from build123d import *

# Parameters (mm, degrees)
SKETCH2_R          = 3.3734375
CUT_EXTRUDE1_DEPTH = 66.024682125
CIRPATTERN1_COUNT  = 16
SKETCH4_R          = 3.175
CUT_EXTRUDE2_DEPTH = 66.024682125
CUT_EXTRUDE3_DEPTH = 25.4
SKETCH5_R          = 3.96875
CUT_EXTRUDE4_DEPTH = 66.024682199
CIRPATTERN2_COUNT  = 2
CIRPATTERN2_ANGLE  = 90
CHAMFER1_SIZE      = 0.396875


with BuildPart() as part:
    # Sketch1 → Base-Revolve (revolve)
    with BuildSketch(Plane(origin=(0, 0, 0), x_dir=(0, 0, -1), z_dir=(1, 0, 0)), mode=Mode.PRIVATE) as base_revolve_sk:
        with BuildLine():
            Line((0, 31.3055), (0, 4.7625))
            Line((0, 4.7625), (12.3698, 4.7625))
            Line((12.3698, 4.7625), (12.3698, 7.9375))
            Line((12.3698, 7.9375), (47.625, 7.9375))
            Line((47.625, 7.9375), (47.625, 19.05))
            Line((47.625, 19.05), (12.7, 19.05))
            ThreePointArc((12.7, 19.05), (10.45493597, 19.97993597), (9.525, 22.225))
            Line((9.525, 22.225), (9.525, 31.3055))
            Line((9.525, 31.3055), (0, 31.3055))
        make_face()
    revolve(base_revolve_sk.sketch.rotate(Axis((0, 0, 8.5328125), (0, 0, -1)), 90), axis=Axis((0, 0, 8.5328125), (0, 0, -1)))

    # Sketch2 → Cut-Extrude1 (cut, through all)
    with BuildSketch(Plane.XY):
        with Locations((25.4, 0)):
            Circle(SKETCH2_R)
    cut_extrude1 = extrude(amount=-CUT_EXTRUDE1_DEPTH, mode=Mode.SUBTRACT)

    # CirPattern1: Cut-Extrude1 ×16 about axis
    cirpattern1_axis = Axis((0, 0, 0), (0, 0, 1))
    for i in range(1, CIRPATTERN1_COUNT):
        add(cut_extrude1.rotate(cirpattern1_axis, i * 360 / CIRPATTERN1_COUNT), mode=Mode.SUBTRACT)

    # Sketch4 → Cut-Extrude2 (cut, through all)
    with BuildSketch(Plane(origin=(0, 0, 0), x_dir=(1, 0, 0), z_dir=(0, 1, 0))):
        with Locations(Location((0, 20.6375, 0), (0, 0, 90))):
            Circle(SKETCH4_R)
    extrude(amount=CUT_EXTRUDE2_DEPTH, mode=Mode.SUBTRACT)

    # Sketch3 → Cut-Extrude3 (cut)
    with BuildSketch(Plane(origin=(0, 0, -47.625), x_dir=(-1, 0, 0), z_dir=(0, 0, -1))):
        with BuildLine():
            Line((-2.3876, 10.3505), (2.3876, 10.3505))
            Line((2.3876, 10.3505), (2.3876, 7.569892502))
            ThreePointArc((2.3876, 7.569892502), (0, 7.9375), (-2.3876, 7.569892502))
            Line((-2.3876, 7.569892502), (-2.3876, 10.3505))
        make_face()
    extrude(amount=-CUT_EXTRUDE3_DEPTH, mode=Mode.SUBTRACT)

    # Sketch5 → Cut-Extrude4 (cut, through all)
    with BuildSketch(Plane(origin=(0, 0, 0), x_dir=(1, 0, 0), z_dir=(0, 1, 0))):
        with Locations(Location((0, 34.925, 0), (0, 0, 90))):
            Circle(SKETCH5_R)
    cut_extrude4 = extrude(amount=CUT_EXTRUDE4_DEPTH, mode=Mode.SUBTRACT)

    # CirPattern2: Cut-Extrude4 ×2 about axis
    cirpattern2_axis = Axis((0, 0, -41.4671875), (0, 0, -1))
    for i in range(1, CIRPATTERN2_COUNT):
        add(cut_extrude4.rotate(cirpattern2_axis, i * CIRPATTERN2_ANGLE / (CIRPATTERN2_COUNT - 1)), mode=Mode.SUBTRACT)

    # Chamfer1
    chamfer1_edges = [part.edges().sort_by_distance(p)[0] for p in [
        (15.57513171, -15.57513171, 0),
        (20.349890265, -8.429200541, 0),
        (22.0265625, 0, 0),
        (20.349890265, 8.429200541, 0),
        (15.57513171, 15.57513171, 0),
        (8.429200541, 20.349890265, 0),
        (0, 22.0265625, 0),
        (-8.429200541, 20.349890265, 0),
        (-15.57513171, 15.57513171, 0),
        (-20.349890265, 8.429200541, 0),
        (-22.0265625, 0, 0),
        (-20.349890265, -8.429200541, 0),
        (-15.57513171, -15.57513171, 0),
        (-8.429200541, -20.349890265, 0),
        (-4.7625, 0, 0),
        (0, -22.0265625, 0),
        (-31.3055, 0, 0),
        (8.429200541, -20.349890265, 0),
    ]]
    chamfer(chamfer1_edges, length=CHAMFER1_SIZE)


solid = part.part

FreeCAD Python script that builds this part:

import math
import FreeCAD as App
import Part
import Sketcher
from FreeCAD import Vector
Q = App.Units.Quantity


def edges_at(feature, points):
    """Names of the edges that pass closest to the given points."""
    edges = feature.Shape.Edges
    near = lambda p: min(range(len(edges)), key=lambda i: edges[i].distToShape(Part.Vertex(*p))[0])
    return sorted({f"Edge{near(p) + 1}" for p in points})

doc = App.newDocument("Part")
body = doc.addObject("PartDesign::Body", "Body")

# Sketch on YZ plane
sketch1 = doc.addObject("Sketcher::SketchObject", "Sketch")
body.addObject(sketch1)
sketch1.AttachmentSupport = (doc.YZ_Plane, [""])
sketch1.MapMode = "FlatFace"
sketch1.addGeometry([
    Part.LineSegment(Vector(31.3055, 0, 0), Vector(4.7625, 0, 0)),  # 0
    Part.LineSegment(Vector(4.7625, 0, 0), Vector(4.7625, -12.3698, 0)),  # 1
    Part.LineSegment(Vector(4.7625, -12.3698, 0), Vector(7.9375, -12.3698, 0)),  # 2
    Part.LineSegment(Vector(7.9375, -12.3698, 0), Vector(7.9375, -47.625, 0)),  # 3
    Part.LineSegment(Vector(7.9375, -47.625, 0), Vector(19.05, -47.625, 0)),  # 4
    Part.LineSegment(Vector(19.05, -47.625, 0), Vector(19.05, -12.7, 0)),  # 5
    Part.ArcOfCircle(Part.Circle(Vector(22.225, -12.7, 0), Vector(0, 0, 1), 3.175), math.radians(90), math.radians(180)),  # 6
    Part.LineSegment(Vector(22.225, -9.525, 0), Vector(31.3055, -9.525, 0)),  # 7
    Part.LineSegment(Vector(31.3055, -9.525, 0), Vector(31.3055, 0, 0)),  # 8
], False)
sketch1.addConstraint([
    Sketcher.Constraint("Coincident", 0, 2, 1, 1),
    Sketcher.Constraint("Coincident", 1, 2, 2, 1),
    Sketcher.Constraint("Coincident", 2, 2, 3, 1),
    Sketcher.Constraint("Coincident", 3, 2, 4, 1),
    Sketcher.Constraint("Coincident", 4, 2, 5, 1),
    Sketcher.Constraint("Tangent", 5, 2, 6, 2),
    Sketcher.Constraint("Tangent", 6, 1, 7, 1),
    Sketcher.Constraint("Coincident", 7, 2, 8, 1),
    Sketcher.Constraint("Coincident", 8, 2, 0, 1),
    Sketcher.Constraint("Horizontal", 0),
    Sketcher.Constraint("Vertical", 1),
    Sketcher.Constraint("Horizontal", 2),
    Sketcher.Constraint("Vertical", 3),
    Sketcher.Constraint("Horizontal", 4),
    Sketcher.Constraint("Vertical", 5),
    Sketcher.Constraint("Horizontal", 7),
    Sketcher.Constraint("Vertical", 8),
    Sketcher.Constraint("PointOnObject", 0, 2, -1),
    Sketcher.Constraint("Radius", 6, Q("0.125 in")),
    Sketcher.Constraint("DistanceY", 6, 3, -1, 1, Q("0.5 in")),
    Sketcher.Constraint("DistanceX", 0, 2, 0, 1, Q("1.045 in")),
    Sketcher.Constraint("DistanceX", 2, 1, 2, 2, Q("0.125 in")),
    Sketcher.Constraint("DistanceX", 4, 1, 4, 2, Q("0.4375 in")),
    Sketcher.Constraint("DistanceY", 1, 2, 1, 1, Q("0.487 in")),
    Sketcher.Constraint("DistanceY", 3, 2, 3, 1, Q("1.388 in")),
    Sketcher.Constraint("DistanceX", -1, 1, 4, 2, Q("0.75 in")),
])
revolution = doc.addObject("PartDesign::Revolution", "Revolution")
body.addObject(revolution)
revolution.Profile = sketch1
revolution.ReferenceAxis = (sketch1, ["V_Axis"])
revolution.Angle = 360

# Sketch on XY plane
sketch2 = doc.addObject("Sketcher::SketchObject", "Sketch001")
body.addObject(sketch2)
sketch2.AttachmentSupport = (doc.XY_Plane, [""])
sketch2.MapMode = "FlatFace"
sketch2.addGeometry(Part.Circle(Vector(25.4, 0, 0), Vector(0, 0, 1), 3.373438), False)
sketch2.addConstraint([
    Sketcher.Constraint("PointOnObject", 0, 3, -1),
    Sketcher.Constraint("Diameter", 0, Q("0.265625 in")),
    Sketcher.Constraint("DistanceX", -1, 1, 0, 3, Q("1 in")),
])
pocket1 = doc.addObject("PartDesign::Pocket", "Pocket")
body.addObject(pocket1)
pocket1.Profile = sketch2
pocket1.Type = "ThroughAll"
doc.recompute()

polarpattern = doc.addObject("PartDesign::PolarPattern", "PolarPattern")
body.addObject(polarpattern)
polarpattern.Originals = [pocket1]
polarpattern.Axis = (doc.Z_Axis, [""])
polarpattern.Angle = 360
polarpattern.Occurrences = 16
body.Tip = polarpattern

# Sketch on XZ plane
sketch3 = doc.addObject("Sketcher::SketchObject", "Sketch002")
body.addObject(sketch3)
sketch3.AttachmentSupport = (doc.XZ_Plane, [""])
sketch3.MapMode = "FlatFace"
sketch3.addGeometry(Part.Circle(Vector(0, -20.6375, 0), Vector(0, 0, 1), 3.175), False)
sketch3.addConstraint([
    Sketcher.Constraint("PointOnObject", 0, 3, -2),
    Sketcher.Constraint("Diameter", 0, Q("0.25 in")),
    Sketcher.Constraint("DistanceY", 0, 3, -1, 1, Q("0.8125 in")),
])
pocket2 = doc.addObject("PartDesign::Pocket", "Pocket001")
body.addObject(pocket2)
pocket2.Profile = sketch3
pocket2.Type = "ThroughAll"

# Sketch on XY plane
sketch4 = doc.addObject("Sketcher::SketchObject", "Sketch003")
body.addObject(sketch4)
sketch4.AttachmentSupport = (doc.XY_Plane, [""])
sketch4.MapMode = "FlatFace"
sketch4.AttachmentOffset = App.Placement(Vector(0, 0, -1.875 * 25.4), App.Rotation())
sketch4.addGeometry([
    Part.LineSegment(Vector(-2.3876, 10.3505, 0), Vector(2.3876, 10.3505, 0)),
    Part.LineSegment(Vector(2.3876, 10.3505, 0), Vector(2.3876, 7.569893, 0)),
    Part.ArcOfCircle(Part.Circle(Vector(0, 0, 0), Vector(0, 0, 1), 7.9375), math.radians(72.494341), math.radians(107.505659)),
    Part.LineSegment(Vector(-2.3876, 7.569893, 0), Vector(-2.3876, 10.3505, 0)),
], False)
sketch4.addConstraint([
    Sketcher.Constraint("Coincident", 0, 2, 1, 1),
    Sketcher.Constraint("Coincident", 1, 2, 2, 1),
    Sketcher.Constraint("Coincident", 2, 2, 3, 1),
    Sketcher.Constraint("Coincident", 3, 2, 0, 1),
    Sketcher.Constraint("Horizontal", 0),
    Sketcher.Constraint("Vertical", 1),
    Sketcher.Constraint("Vertical", 3),
    Sketcher.Constraint("Coincident", 2, 3, -1, 1),
    Sketcher.Constraint("Horizontal", 1, 2, 2, 2),
    Sketcher.Constraint("Radius", 2, Q("0.3125 in")),
    Sketcher.Constraint("DistanceX", 0, 1, 0, 2, Q("0.188 in")),
    Sketcher.Constraint("DistanceY", -1, 1, 0, 2, Q("0.4075 in")),
])
pocket3 = doc.addObject("PartDesign::Pocket", "Pocket002")
body.addObject(pocket3)
pocket3.Profile = sketch4
pocket3.Length = Q("1 in")
pocket3.Reversed = True

# Sketch on XZ plane
sketch5 = doc.addObject("Sketcher::SketchObject", "Sketch004")
body.addObject(sketch5)
sketch5.AttachmentSupport = (doc.XZ_Plane, [""])
sketch5.MapMode = "FlatFace"
sketch5.addGeometry(Part.Circle(Vector(0, -34.925, 0), Vector(0, 0, 1), 3.96875), False)
sketch5.addConstraint([
    Sketcher.Constraint("PointOnObject", 0, 3, -2),
    Sketcher.Constraint("Diameter", 0, Q("0.3125 in")),
    Sketcher.Constraint("DistanceY", 0, 3, -1, 1, Q("1.375 in")),
])
pocket4 = doc.addObject("PartDesign::Pocket", "Pocket003")
body.addObject(pocket4)
pocket4.Profile = sketch5
pocket4.Type = "ThroughAll"
doc.recompute()

polarpattern2 = doc.addObject("PartDesign::PolarPattern", "PolarPattern001")
body.addObject(polarpattern2)
polarpattern2.Originals = [pocket4]
polarpattern2.Axis = (doc.Z_Axis, [""])
polarpattern2.Angle = 90
polarpattern2.Occurrences = 2
polarpattern2.Reversed = True
body.Tip = polarpattern2
doc.recompute()

chamfer = doc.addObject("PartDesign::Chamfer", "Chamfer")
body.addObject(chamfer)
chamfer.Base = (polarpattern2, edges_at(polarpattern2, [
    (15.575, -15.575, 0),
    (20.35, -8.429, 0),
    (22.027, 0, 0),
    (20.35, 8.429, 0),
    (15.575, 15.575, 0),
    (8.429, 20.35, 0),
    (0, 22.027, 0),
    (-8.429, 20.35, 0),
    (-15.575, 15.575, 0),
    (-20.35, 8.429, 0),
    (-22.027, 0, 0),
    (-20.35, -8.429, 0),
    (-15.575, -15.575, 0),
    (-8.429, -20.35, 0),
    (-4.763, 0, 0),
    (0, -22.027, 0),
    (-31.305, 0, 0),
    (8.429, -20.35, 0),
]))
chamfer.Size = Q("0.015625 in")

doc.recompute()
